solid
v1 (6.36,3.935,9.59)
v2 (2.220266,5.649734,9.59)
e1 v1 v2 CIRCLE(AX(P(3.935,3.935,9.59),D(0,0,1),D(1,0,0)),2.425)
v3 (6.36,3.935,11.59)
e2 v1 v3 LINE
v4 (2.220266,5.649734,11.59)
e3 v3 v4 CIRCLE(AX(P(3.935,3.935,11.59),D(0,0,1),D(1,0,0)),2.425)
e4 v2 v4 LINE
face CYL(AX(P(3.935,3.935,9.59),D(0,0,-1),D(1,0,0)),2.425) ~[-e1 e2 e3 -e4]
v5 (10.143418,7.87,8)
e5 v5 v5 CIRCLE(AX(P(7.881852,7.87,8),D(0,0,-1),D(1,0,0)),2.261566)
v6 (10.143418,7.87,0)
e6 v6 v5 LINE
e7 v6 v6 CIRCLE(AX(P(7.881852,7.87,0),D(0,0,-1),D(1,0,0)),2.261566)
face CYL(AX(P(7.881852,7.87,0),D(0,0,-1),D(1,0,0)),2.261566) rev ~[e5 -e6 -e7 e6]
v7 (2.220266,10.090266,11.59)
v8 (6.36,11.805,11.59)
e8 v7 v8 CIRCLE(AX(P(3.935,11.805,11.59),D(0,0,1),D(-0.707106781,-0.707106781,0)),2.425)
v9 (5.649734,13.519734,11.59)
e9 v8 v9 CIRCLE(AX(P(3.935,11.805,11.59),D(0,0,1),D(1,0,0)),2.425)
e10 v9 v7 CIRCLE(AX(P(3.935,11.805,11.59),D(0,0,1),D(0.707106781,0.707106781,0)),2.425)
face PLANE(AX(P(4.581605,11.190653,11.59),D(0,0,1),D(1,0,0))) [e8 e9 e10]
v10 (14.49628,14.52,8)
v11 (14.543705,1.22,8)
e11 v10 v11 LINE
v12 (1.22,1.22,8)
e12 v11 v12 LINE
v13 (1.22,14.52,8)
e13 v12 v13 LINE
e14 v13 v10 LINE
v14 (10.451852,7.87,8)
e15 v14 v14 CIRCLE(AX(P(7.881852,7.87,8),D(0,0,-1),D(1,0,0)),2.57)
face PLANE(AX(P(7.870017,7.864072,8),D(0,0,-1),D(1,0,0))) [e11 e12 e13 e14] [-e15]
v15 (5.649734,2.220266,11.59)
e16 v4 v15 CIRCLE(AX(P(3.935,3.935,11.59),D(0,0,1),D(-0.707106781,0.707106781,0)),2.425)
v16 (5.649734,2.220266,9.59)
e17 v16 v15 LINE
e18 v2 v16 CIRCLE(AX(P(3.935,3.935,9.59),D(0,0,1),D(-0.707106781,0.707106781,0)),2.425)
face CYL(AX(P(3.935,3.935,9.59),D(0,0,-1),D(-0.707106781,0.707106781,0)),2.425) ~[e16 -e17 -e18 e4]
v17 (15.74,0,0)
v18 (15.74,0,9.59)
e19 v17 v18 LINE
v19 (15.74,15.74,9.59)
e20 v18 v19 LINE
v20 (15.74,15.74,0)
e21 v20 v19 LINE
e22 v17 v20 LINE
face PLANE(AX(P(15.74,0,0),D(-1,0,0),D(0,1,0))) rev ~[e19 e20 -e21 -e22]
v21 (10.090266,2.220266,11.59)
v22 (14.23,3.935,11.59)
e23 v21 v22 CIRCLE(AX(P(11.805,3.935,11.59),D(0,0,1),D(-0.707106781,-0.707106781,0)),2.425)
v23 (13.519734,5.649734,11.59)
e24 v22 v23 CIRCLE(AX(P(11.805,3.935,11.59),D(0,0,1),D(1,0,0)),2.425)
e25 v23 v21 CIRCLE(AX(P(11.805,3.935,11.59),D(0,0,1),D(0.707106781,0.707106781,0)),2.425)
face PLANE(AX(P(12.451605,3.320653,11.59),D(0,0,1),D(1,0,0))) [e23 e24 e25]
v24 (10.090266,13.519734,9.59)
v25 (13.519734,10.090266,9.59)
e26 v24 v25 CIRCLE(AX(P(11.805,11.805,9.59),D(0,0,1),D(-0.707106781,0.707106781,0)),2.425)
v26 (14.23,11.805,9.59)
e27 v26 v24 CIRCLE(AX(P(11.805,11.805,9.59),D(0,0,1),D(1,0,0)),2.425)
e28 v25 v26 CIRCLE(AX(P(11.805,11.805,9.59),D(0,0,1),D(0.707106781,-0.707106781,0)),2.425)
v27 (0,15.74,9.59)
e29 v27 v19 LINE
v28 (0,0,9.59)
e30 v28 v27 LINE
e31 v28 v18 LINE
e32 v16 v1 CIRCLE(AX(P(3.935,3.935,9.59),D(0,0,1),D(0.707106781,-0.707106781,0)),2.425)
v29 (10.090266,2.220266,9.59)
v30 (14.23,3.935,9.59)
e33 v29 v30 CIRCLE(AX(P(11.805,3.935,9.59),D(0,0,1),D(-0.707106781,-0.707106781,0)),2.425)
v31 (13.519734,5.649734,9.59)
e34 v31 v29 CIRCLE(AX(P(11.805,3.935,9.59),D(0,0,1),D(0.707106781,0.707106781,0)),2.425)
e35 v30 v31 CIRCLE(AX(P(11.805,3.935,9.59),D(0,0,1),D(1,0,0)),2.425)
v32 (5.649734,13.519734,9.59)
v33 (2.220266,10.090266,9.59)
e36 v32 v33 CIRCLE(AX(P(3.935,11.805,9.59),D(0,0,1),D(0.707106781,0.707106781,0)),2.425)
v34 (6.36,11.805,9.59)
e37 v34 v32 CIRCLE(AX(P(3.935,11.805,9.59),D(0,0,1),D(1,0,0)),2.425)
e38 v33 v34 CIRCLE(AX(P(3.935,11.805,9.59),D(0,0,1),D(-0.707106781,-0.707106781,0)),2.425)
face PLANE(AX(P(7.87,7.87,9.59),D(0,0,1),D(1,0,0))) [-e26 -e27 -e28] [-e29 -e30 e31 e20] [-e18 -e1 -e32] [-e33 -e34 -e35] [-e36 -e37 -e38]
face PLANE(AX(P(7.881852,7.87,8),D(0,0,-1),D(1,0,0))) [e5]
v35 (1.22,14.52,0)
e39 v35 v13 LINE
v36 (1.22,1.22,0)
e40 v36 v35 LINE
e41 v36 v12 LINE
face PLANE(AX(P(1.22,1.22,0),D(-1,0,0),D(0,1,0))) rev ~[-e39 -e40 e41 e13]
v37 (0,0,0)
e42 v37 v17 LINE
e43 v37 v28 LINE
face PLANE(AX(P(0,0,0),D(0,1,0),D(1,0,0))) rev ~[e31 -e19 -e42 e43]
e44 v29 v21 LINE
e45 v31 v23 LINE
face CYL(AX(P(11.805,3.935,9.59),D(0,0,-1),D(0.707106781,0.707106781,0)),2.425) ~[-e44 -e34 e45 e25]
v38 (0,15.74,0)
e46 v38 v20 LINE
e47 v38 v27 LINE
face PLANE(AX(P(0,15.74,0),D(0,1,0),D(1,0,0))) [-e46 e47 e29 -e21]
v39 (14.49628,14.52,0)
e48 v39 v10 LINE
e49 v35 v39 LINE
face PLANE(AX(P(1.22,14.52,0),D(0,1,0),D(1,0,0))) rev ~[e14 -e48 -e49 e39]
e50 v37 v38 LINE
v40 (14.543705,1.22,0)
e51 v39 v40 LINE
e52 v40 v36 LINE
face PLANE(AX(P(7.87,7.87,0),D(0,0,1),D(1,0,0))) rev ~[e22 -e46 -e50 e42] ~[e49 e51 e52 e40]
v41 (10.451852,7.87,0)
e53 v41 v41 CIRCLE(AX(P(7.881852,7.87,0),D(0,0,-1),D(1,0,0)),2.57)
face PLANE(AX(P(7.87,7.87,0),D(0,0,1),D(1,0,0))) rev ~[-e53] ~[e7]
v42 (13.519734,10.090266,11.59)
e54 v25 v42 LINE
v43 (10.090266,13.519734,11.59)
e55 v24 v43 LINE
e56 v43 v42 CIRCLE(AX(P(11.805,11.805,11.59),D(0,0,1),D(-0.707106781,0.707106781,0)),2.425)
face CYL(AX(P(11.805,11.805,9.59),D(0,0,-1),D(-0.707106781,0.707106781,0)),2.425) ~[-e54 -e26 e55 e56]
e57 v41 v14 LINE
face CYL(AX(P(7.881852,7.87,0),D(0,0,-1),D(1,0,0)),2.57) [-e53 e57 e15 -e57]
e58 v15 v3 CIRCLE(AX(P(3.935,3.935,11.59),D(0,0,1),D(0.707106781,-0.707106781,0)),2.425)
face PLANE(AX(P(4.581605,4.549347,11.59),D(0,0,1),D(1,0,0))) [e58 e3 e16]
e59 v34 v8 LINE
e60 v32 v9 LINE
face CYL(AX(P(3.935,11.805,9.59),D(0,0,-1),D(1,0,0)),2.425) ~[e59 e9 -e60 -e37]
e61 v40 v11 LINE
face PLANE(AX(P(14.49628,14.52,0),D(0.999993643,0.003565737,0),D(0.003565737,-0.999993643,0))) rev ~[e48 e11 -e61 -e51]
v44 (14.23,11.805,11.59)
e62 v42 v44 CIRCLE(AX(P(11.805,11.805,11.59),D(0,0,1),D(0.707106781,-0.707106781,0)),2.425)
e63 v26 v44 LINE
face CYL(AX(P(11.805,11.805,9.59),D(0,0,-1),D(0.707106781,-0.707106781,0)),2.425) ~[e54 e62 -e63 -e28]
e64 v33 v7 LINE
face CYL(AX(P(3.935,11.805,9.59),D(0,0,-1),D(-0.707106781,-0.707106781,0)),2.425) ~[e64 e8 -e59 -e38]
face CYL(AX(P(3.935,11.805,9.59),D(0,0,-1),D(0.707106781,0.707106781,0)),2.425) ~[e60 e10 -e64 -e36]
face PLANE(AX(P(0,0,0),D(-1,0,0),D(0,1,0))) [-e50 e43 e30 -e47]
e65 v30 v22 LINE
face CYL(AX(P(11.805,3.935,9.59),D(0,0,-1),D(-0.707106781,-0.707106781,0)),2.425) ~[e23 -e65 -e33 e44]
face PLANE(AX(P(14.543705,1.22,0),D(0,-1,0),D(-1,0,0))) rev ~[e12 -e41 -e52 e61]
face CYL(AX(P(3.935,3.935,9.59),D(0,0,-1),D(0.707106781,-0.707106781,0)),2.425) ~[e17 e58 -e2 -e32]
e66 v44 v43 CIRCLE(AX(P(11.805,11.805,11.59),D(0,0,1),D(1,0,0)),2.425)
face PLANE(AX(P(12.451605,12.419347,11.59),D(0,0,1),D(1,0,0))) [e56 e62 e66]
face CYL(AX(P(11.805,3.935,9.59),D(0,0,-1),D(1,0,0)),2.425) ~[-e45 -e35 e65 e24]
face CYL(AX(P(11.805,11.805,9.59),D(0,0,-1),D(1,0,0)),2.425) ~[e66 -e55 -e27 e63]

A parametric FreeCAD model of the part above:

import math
import FreeCAD as App
import Part
import Sketcher
Q = App.Units.Quantity

doc = App.newDocument("Part")
body = doc.addObject("PartDesign::Body", "Body")

sketch1 = body.newObject("Sketcher::SketchObject", "Sketch")
sketch1.AttachmentSupport = (doc.getObject("XY_Plane"), [""])
sketch1.MapMode = "FlatFace"
sketch1.addGeometry(Part.LineSegment(App.Vector(0, 15.74, 0), App.Vector(0, 0, 0)), False)
sketch1.addGeometry(Part.LineSegment(App.Vector(0, 0, 0), App.Vector(15.74, 0, 0)), False)
sketch1.addGeometry(Part.LineSegment(App.Vector(15.74, 0, 0), App.Vector(15.74, 15.74, 0)), False)
sketch1.addGeometry(Part.LineSegment(App.Vector(15.74, 15.74, 0), App.Vector(0, 15.74, 0)), False)
sketch1.addConstraint(Sketcher.Constraint("Coincident", 0, 2, 1, 1))
sketch1.addConstraint(Sketcher.Constraint("Coincident", 1, 2, 2, 1))
sketch1.addConstraint(Sketcher.Constraint("Coincident", 2, 2, 3, 1))
sketch1.addConstraint(Sketcher.Constraint("Coincident", 3, 2, 0, 1))
sketch1.addConstraint(Sketcher.Constraint("Vertical", 0))
sketch1.addConstraint(Sketcher.Constraint("Horizontal", 1))
sketch1.addConstraint(Sketcher.Constraint("Vertical", 2))
sketch1.addConstraint(Sketcher.Constraint("Horizontal", 3))
sketch1.addConstraint(Sketcher.Constraint("Coincident", 0, 2, -1, 1))
sketch1.addConstraint(Sketcher.Constraint("Equal", 3, 0))
sketch1.addConstraint(Sketcher.Constraint("DistanceX", 1, 1, 1, 2, Q("15.74 mm")))
pad1 = body.newObject("PartDesign::Pad", "Pad")
pad1.Profile = sketch1
pad1.Length = 9.59

sketch2 = body.newObject("Sketcher::SketchObject", "Sketch001")
sketch2.AttachmentSupport = (doc.getObject("XY_Plane"), [""])
sketch2.MapMode = "FlatFace"
sketch2.AttachmentOffset = App.Placement(App.Vector(0, 0, 9.59), App.Rotation())
sketch2.addGeometry(Part.ArcOfCircle(Part.Circle(App.Vector(3.935, 11.805, 0), App.Vector(0, 0, 1), 2.425), math.radians(0), math.radians(45)), False)
sketch2.addGeometry(Part.ArcOfCircle(Part.Circle(App.Vector(3.935, 11.805, 0), App.Vector(0, 0, 1), 2.425), math.radians(45), math.radians(225)), False)
sketch2.addGeometry(Part.ArcOfCircle(Part.Circle(App.Vector(3.935, 11.805, 0), App.Vector(0, 0, 1), 2.425), math.radians(-135), math.radians(0)), False)
sketch2.addGeometry(Part.ArcOfCircle(Part.Circle(App.Vector(11.805, 11.805, 0), App.Vector(0, 0, 1), 2.425), math.radians(0), math.radians(135)), False)
sketch2.addGeometry(Part.ArcOfCircle(Part.Circle(App.Vector(11.805, 11.805, 0), App.Vector(0, 0, 1), 2.425), math.radians(135), math.radians(315)), False)
sketch2.addGeometry(Part.ArcOfCircle(Part.Circle(App.Vector(11.805, 11.805, 0), App.Vector(0, 0, 1), 2.425), math.radians(-45), math.radians(0)), False)
sketch2.addGeometry(Part.ArcOfCircle(Part.Circle(App.Vector(11.805, 3.935, 0), App.Vector(0, 0, 1), 2.425), math.radians(-135), math.radians(0)), False)
sketch2.addGeometry(Part.ArcOfCircle(Part.Circle(App.Vector(11.805, 3.935, 0), App.Vector(0, 0, 1), 2.425), math.radians(0), math.radians(45)), False)
sketch2.addGeometry(Part.ArcOfCircle(Part.Circle(App.Vector(11.805, 3.935, 0), App.Vector(0, 0, 1), 2.425), math.radians(45), math.radians(225)), False)
sketch2.addGeometry(Part.ArcOfCircle(Part.Circle(App.Vector(3.935, 3.935, 0), App.Vector(0, 0, 1), 2.425), math.radians(-45), math.radians(0)), False)
sketch2.addGeometry(Part.ArcOfCircle(Part.Circle(App.Vector(3.935, 3.935, 0), App.Vector(0, 0, 1), 2.425), math.radians(0), math.radians(135)), False)
sketch2.addGeometry(Part.ArcOfCircle(Part.Circle(App.Vector(3.935, 3.935, 0), App.Vector(0, 0, 1), 2.425), math.radians(135), math.radians(315)), False)
sketch2.addConstraint(Sketcher.Constraint("Tangent", 0, 2, 1, 1))
sketch2.addConstraint(Sketcher.Constraint("Tangent", 1, 2, 2, 1))
sketch2.addConstraint(Sketcher.Constraint("Tangent", 2, 2, 0, 1))
sketch2.addConstraint(Sketcher.Constraint("Tangent", 3, 2, 4, 1))
sketch2.addConstraint(Sketcher.Constraint("Tangent", 4, 2, 5, 1))
sketch2.addConstraint(Sketcher.Constraint("Tangent", 5, 2, 3, 1))
sketch2.addConstraint(Sketcher.Constraint("Tangent", 6, 2, 7, 1))
sketch2.addConstraint(Sketcher.Constraint("Tangent", 7, 2, 8, 1))
sketch2.addConstraint(Sketcher.Constraint("Tangent", 8, 2, 6, 1))
sketch2.addConstraint(Sketcher.Constraint("Tangent", 9, 2, 10, 1))
sketch2.addConstraint(Sketcher.Constraint("Tangent", 10, 2, 11, 1))
sketch2.addConstraint(Sketcher.Constraint("Tangent", 11, 2, 9, 1))
sketch2.addConstraint(Sketcher.Constraint("Equal", 2, 3))
sketch2.addConstraint(Sketcher.Constraint("Equal", 5, 6))
sketch2.addConstraint(Sketcher.Constraint("Equal", 8, 9))
sketch2.addConstraint(Sketcher.Constraint("Horizontal", 2, 3, 3, 3))
sketch2.addConstraint(Sketcher.Constraint("Horizontal", 8, 3, 9, 3))
sketch2.addConstraint(Sketcher.Constraint("Horizontal", 5, 3, 2, 2))
sketch2.addConstraint(Sketcher.Constraint("Horizontal", 0, 2, 3, 2))
sketch2.addConstraint(Sketcher.Constraint("Horizontal", 1, 2, 4, 2))
sketch2.addConstraint(Sketcher.Constraint("Horizontal", 2, 2, 5, 2))
sketch2.addConstraint(Sketcher.Constraint("Horizontal", 11, 3, 6, 2))
sketch2.addConstraint(Sketcher.Constraint("Horizontal", 6, 2, 9, 2))
sketch2.addConstraint(Sketcher.Constraint("Horizontal", 7, 2, 10, 2))
sketch2.addConstraint(Sketcher.Constraint("Horizontal", 8, 2, 11, 2))
sketch2.addConstraint(Sketcher.Constraint("Vertical", 5, 3, 6, 3))
sketch2.addConstraint(Sketcher.Constraint("Vertical", 2, 3, 9, 3))
sketch2.addConstraint(Sketcher.Constraint("Vertical", 4, 2, 7, 2))
sketch2.addConstraint(Sketcher.Constraint("Vertical", 3, 2, 8, 2))
sketch2.addConstraint(Sketcher.Constraint("Radius", 0, Q("2.425 mm")))
sketch2.addConstraint(Sketcher.Constraint("DistanceX", -1, 1, 2, 2, Q("6.36 mm")))
sketch2.addConstraint(Sketcher.Constraint("DistanceX", -1, 1, 5, 2, Q("14.23 mm")))
sketch2.addConstraint(Sketcher.Constraint("DistanceY", 6, 3, 3, 3, Q("7.87 mm")))
sketch2.addConstraint(Sketcher.Constraint("DistanceY", -1, 1, 0, 3, Q("11.805 mm")))
sketch2.addConstraint(Sketcher.Constraint("DistanceX", -1, 1, 0, 2, Q("5.649734 mm")))
sketch2.addConstraint(Sketcher.Constraint("DistanceX", -1, 1, 1, 2, Q("2.220266 mm")))
pad2 = body.newObject("PartDesign::Pad", "Pad001")
pad2.Profile = sketch2
pad2.Length = 2

sketch3 = body.newObject("Sketcher::SketchObject", "Sketch002")
sketch3.AttachmentSupport = (doc.getObject("XY_Plane"), [""])
sketch3.MapMode = "FlatFace"
sketch3.addGeometry(Part.LineSegment(App.Vector(14.543705, 1.22, 0), App.Vector(1.22, 1.22, 0)), False)
sketch3.addGeometry(Part.LineSegment(App.Vector(1.22, 1.22, 0), App.Vector(1.22, 14.52, 0)), False)
sketch3.addGeometry(Part.LineSegment(App.Vector(1.22, 14.52, 0), App.Vector(14.49628, 14.52, 0)), False)
sketch3.addGeometry(Part.LineSegment(App.Vector(14.49628, 14.52, 0), App.Vector(14.543705, 1.22, 0)), False)
sketch3.addGeometry(Part.Circle(App.Vector(7.881852, 7.87, 0), App.Vector(0, 0, 1), 2.57), False)
sketch3.addConstraint(Sketcher.Constraint("Coincident", 0, 2, 1, 1))
sketch3.addConstraint(Sketcher.Constraint("Coincident", 1, 2, 2, 1))
sketch3.addConstraint(Sketcher.Constraint("Coincident", 2, 2, 3, 1))
sketch3.addConstraint(Sketcher.Constraint("Coincident", 3, 2, 0, 1))
sketch3.addConstraint(Sketcher.Constraint("Horizontal", 0))
sketch3.addConstraint(Sketcher.Constraint("Vertical", 1))
sketch3.addConstraint(Sketcher.Constraint("Horizontal", 2))
sketch3.addConstraint(Sketcher.Constraint("Diameter", 4, Q("5.14 mm")))
sketch3.addConstraint(Sketcher.Constraint("DistanceY", 1, 1, 1, 2, Q("13.3 mm")))
sketch3.addConstraint(Sketcher.Constraint("DistanceY", -1, 1, 4, 3, Q("7.87 mm")))
sketch3.addConstraint(Sketcher.Constraint("DistanceX", -1, 1, 0, 2, Q("1.22 mm")))
sketch3.addConstraint(Sketcher.Constraint("DistanceY", -1, 1, 0, 2, Q("1.22 mm")))
sketch3.addConstraint(Sketcher.Constraint("DistanceX", 2, 1, 2, 2, Q("13.27628 mm")))
sketch3.addConstraint(Sketcher.Constraint("DistanceX", 0, 2, 0, 1, Q("13.323705 mm")))
sketch3.addConstraint(Sketcher.Constraint("DistanceX", -1, 1, 4, 3, Q("7.881852 mm")))
pocket1 = body.newObject("PartDesign::Pocket", "Pocket")
pocket1.Profile = sketch3
pocket1.Length = 8
pocket1.Reversed = True

sketch4 = body.newObject("Sketcher::SketchObject", "Sketch003")
sketch4.AttachmentSupport = (doc.getObject("XY_Plane"), [""])
sketch4.MapMode = "FlatFace"
sketch4.addGeometry(Part.Circle(App.Vector(7.881852, 7.87, 0), App.Vector(0, 0, 1), 2.261566), False)
sketch4.addConstraint(Sketcher.Constraint("DistanceY", -1, 1, 0, 3, Q("7.87 mm")))
sketch4.addConstraint(Sketcher.Constraint("Diameter", 0, Q("4.523132 mm")))
sketch4.addConstraint(Sketcher.Constraint("DistanceX", -1, 1, 0, 3, Q("7.881852 mm")))
pocket2 = body.newObject("PartDesign::Pocket", "Pocket001")
pocket2.Profile = sketch4
pocket2.Length = 8
pocket2.Reversed = True

doc.recompute()
